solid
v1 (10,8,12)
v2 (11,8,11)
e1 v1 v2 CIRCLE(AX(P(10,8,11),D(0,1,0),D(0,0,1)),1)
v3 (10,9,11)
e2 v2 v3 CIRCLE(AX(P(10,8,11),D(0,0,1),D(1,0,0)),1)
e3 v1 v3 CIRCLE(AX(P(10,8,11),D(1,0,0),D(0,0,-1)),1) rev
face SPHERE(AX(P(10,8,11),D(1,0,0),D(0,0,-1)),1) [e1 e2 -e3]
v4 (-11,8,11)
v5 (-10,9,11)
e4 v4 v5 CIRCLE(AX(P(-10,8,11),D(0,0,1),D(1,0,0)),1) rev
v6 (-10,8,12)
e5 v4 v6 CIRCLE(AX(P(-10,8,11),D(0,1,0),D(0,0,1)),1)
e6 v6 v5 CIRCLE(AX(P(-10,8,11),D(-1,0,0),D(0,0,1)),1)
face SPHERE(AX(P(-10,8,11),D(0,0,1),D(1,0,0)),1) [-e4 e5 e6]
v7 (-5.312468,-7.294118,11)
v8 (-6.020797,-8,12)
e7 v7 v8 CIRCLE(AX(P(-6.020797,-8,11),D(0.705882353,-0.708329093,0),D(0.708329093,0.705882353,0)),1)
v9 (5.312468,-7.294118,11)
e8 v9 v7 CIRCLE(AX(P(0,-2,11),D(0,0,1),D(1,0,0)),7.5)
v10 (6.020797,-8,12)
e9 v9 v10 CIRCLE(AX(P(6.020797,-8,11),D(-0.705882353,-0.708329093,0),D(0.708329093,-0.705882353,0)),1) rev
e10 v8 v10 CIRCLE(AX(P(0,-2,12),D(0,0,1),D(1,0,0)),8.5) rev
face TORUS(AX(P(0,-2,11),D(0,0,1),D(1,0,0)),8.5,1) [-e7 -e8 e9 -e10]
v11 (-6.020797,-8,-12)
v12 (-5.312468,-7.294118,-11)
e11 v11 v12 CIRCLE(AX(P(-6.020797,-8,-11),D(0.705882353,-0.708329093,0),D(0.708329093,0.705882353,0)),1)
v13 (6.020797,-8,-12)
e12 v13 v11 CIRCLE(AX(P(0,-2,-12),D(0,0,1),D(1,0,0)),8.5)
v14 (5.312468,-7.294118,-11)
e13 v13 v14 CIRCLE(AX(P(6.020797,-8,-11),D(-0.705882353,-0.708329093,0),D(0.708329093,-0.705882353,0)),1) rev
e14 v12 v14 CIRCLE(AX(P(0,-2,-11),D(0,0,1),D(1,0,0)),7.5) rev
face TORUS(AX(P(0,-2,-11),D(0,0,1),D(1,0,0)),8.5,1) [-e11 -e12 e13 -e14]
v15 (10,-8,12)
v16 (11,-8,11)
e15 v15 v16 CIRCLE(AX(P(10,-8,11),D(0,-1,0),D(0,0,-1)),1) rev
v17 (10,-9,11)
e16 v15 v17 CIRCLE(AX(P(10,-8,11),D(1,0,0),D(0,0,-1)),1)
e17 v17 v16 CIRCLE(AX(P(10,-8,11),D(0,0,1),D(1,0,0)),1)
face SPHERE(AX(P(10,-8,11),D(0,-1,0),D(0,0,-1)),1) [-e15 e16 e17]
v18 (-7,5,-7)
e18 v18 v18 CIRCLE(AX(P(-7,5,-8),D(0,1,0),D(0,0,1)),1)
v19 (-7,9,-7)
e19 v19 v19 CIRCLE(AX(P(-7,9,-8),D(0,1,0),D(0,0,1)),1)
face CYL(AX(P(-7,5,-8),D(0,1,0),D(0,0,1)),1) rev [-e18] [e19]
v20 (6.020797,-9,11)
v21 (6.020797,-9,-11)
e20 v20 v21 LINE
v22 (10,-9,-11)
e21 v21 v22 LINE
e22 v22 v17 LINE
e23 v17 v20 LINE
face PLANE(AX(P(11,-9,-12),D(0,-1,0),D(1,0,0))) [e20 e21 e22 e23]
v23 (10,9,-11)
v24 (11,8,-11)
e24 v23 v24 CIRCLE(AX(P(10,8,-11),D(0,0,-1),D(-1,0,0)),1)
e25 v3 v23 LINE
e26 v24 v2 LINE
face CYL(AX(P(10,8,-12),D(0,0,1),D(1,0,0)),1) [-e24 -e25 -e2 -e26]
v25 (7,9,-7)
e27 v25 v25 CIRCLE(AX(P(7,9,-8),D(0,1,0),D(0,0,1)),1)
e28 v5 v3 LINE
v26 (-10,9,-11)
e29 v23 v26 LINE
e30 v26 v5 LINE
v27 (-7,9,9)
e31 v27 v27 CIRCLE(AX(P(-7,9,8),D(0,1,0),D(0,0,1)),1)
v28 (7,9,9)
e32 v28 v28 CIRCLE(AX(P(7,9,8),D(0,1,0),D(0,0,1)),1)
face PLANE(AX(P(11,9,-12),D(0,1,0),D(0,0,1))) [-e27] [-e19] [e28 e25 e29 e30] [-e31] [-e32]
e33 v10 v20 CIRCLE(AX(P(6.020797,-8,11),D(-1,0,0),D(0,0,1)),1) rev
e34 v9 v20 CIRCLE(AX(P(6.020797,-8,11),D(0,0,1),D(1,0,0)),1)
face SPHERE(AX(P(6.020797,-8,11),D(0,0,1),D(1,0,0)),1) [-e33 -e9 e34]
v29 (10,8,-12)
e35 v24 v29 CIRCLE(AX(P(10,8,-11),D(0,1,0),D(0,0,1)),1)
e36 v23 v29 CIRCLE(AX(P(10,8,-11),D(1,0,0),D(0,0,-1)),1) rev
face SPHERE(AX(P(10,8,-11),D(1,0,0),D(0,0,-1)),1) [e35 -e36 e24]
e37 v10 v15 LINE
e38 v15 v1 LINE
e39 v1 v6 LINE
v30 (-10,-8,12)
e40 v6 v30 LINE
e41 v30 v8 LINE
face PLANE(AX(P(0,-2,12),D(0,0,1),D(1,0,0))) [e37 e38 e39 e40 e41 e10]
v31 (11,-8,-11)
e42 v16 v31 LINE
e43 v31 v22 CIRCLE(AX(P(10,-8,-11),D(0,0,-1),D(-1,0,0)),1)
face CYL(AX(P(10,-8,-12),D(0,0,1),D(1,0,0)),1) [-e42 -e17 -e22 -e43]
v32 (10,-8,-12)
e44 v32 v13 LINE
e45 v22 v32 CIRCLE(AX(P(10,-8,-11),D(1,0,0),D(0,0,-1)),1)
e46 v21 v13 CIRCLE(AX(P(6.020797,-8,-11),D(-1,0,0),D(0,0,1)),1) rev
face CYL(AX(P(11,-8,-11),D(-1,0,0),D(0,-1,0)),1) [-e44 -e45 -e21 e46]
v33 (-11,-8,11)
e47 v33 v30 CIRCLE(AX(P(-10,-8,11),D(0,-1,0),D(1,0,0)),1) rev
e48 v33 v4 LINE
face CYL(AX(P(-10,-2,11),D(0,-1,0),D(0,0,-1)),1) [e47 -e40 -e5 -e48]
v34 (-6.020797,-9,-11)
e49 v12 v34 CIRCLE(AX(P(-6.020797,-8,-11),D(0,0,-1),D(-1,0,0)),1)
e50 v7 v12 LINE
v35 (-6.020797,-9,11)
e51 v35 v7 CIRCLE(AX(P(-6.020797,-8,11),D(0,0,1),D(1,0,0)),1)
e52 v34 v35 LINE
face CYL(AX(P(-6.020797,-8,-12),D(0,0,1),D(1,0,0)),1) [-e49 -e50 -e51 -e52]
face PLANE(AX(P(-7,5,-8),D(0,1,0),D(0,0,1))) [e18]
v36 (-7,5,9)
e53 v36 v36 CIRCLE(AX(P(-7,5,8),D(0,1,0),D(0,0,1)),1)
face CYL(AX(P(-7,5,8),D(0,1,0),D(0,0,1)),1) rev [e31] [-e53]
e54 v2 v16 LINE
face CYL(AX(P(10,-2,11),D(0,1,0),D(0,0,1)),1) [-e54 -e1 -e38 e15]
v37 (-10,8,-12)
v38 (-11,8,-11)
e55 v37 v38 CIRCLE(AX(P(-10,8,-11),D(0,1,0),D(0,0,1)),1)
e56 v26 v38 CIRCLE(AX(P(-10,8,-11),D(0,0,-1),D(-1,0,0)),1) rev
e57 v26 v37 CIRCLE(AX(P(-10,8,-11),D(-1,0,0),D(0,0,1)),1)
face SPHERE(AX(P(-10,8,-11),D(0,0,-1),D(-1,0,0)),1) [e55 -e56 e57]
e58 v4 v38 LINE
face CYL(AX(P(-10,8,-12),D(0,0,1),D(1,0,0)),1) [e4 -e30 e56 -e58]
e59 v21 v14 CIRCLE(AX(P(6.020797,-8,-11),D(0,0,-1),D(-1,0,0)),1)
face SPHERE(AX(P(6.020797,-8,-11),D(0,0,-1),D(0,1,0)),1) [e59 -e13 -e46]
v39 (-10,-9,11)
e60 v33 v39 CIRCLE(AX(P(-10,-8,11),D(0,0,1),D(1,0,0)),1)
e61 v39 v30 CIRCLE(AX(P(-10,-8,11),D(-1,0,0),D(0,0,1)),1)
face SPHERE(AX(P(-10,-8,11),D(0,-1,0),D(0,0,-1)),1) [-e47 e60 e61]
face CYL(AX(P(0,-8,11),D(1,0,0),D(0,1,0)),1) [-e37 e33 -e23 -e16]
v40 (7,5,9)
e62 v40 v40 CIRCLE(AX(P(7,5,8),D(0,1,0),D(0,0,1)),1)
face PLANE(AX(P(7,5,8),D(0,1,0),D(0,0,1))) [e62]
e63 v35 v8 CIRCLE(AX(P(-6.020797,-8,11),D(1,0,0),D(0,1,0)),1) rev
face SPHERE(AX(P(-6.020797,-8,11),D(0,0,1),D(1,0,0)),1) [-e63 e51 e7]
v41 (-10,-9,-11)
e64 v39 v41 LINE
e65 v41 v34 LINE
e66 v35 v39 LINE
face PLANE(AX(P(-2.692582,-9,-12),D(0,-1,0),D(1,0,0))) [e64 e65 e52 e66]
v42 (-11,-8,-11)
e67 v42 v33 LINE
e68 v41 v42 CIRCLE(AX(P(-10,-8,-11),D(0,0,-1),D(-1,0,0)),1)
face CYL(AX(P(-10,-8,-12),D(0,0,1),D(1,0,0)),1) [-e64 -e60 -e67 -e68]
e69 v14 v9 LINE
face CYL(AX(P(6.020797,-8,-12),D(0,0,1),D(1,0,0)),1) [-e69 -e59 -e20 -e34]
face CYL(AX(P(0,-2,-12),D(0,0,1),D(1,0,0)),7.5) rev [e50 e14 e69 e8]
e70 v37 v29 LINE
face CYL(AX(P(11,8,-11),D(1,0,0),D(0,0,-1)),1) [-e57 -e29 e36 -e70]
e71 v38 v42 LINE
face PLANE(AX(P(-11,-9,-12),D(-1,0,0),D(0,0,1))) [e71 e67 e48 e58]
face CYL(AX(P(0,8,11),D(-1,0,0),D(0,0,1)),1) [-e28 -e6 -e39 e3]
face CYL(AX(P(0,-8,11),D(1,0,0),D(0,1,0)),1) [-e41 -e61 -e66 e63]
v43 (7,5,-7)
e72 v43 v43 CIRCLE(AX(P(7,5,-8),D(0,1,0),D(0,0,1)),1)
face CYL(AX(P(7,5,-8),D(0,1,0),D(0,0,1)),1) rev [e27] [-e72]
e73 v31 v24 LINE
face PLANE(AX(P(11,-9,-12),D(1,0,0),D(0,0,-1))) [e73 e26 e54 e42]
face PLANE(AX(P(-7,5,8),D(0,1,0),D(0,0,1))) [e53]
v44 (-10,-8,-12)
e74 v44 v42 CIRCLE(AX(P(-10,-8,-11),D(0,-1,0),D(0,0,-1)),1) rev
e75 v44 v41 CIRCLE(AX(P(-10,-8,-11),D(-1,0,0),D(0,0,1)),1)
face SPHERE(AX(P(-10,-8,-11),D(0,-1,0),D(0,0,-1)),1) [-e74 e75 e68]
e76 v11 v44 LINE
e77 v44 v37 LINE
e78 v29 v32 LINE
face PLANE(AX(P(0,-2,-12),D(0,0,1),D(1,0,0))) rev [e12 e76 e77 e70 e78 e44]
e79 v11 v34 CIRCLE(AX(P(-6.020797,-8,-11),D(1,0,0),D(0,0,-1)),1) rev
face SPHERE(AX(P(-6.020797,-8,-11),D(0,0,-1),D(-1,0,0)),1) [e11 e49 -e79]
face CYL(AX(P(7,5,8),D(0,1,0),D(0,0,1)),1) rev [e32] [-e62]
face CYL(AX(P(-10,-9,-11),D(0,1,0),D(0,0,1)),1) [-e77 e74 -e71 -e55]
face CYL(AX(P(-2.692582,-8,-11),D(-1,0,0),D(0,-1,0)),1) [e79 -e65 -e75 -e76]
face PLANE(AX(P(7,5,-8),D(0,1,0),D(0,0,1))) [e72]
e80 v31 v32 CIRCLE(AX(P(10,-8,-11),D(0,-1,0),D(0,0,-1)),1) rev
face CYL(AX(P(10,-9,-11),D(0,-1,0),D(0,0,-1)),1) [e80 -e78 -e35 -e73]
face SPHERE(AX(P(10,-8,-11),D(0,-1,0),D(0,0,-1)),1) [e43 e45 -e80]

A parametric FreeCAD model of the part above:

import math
import FreeCAD as App
import Part
import Sketcher
Q = App.Units.Quantity


def edges_at(feature, points):
    """Names of the edges that pass closest to the given points."""
    edges = feature.Shape.Edges
    near = lambda p: min(range(len(edges)), key=lambda i: edges[i].distToShape(Part.Vertex(*p))[0])
    return sorted({f"Edge{near(p) + 1}" for p in points})

doc = App.newDocument("Part")
body = doc.addObject("PartDesign::Body", "Body")

sketch1 = body.newObject("Sketcher::SketchObject", "Sketch")
sketch1.AttachmentSupport = (doc.getObject("XY_Plane"), [""])
sketch1.MapMode = "FlatFace"
sketch1.addGeometry([
    Part.LineSegment(App.Vector(2.692582, -9, 0), App.Vector(11, -9, 0)),
    Part.LineSegment(App.Vector(11, -9, 0), App.Vector(11, 9, 0)),
    Part.LineSegment(App.Vector(11, 9, 0), App.Vector(-11, 9, 0)),
    Part.LineSegment(App.Vector(-11, 9, 0), App.Vector(-11, -9, 0)),
    Part.LineSegment(App.Vector(-11, -9, 0), App.Vector(-2.692582, -9, 0)),
    Part.ArcOfCircle(Part.Circle(App.Vector(0, -2, 0), App.Vector(0, 0, 1), 7.5), math.radians(-68.96053), math.radians(248.96053)),
], False)
sketch1.addConstraint([
    Sketcher.Constraint("Coincident", 0, 2, 1, 1),
    Sketcher.Constraint("Coincident", 1, 2, 2, 1),
    Sketcher.Constraint("Coincident", 2, 2, 3, 1),
    Sketcher.Constraint("Coincident", 3, 2, 4, 1),
    Sketcher.Constraint("Coincident", 4, 2, 5, 2),
    Sketcher.Constraint("Coincident", 5, 1, 0, 1),
    Sketcher.Constraint("Horizontal", 0),
    Sketcher.Constraint("Vertical", 1),
    Sketcher.Constraint("Horizontal", 2),
    Sketcher.Constraint("Vertical", 3),
    Sketcher.Constraint("Horizontal", 4),
    Sketcher.Constraint("Symmetric", 0, 2, 2, 2, -1, 1),
    Sketcher.Constraint("Symmetric", 4, 2, 5, 1, -2),
    Sketcher.Constraint("Radius", 5, Q("7.5 mm")),
    Sketcher.Constraint("DistanceX", 2, 2, 2, 1, Q("22 mm")),
    Sketcher.Constraint("DistanceY", 1, 1, 1, 2, Q("18 mm")),
    Sketcher.Constraint("DistanceY", 5, 3, -1, 1, Q("2 mm")),
])
pad1 = body.newObject("PartDesign::Pad", "Pad")
pad1.Profile = sketch1
pad1.Type = "TwoLengths"
pad1.Length = 12
pad1.Length2 = 12

sketch2 = body.newObject("Sketcher::SketchObject", "Sketch001")
sketch2.AttachmentSupport = (doc.getObject("XZ_Plane"), [""])
sketch2.MapMode = "FlatFace"
sketch2.AttachmentOffset = App.Placement(App.Vector(0, 0, -9), App.Rotation())
sketch2.addGeometry([
    Part.Circle(App.Vector(-7, -8, 0), App.Vector(0, 0, 1), 1),
    Part.Circle(App.Vector(7, -8, 0), App.Vector(0, 0, 1), 1),
    Part.Circle(App.Vector(7, 8, 0), App.Vector(0, 0, 1), 1),
    Part.Circle(App.Vector(-7, 8, 0), App.Vector(0, 0, 1), 1),
], False)
sketch2.addConstraint([
    Sketcher.Constraint("Equal", 0, 1),
    Sketcher.Constraint("Equal", 1, 2),
    Sketcher.Constraint("Equal", 2, 3),
    Sketcher.Constraint("Symmetric", 0, 3, 2, 3, -1, 1),
    Sketcher.Constraint("Symmetric", 1, 3, 3, 3, -1, 1),
    Sketcher.Constraint("Symmetric", 0, 3, 1, 3, -2),
    Sketcher.Constraint("Diameter", 0, Q("2 mm")),
    Sketcher.Constraint("DistanceX", 0, 3, -1, 1, Q("7 mm")),
    Sketcher.Constraint("DistanceY", 0, 3, -1, 1, Q("8 mm")),
])
pocket1 = body.newObject("PartDesign::Pocket", "Pocket")
pocket1.Profile = sketch2
pocket1.Length = 4
pocket1.Reversed = True
doc.recompute()

fillet = body.newObject("PartDesign::Fillet", "Fillet")
fillet.Base = (pocket1, edges_at(pocket1, [
    (-11, 9, 0),
    (11, 9, 0),
    (11, -9, 0),
    (2.693, -9, 0),
    (-2.693, -9, 0),
    (-11, -9, 0),
    (0, 5.5, -12),
    (6.846, -9, -12),
    (-11, 0, 12),
    (-6.846, -9, 12),
    (0, 5.5, 12),
    (6.846, -9, 12),
    (11, 0, 12),
    (0, 9, 12),
    (11, 0, -12),
    (0, 9, -12),
    (-11, 0, -12),
    (-6.846, -9, -12),
]))
fillet.Radius = 1

doc.recompute()
